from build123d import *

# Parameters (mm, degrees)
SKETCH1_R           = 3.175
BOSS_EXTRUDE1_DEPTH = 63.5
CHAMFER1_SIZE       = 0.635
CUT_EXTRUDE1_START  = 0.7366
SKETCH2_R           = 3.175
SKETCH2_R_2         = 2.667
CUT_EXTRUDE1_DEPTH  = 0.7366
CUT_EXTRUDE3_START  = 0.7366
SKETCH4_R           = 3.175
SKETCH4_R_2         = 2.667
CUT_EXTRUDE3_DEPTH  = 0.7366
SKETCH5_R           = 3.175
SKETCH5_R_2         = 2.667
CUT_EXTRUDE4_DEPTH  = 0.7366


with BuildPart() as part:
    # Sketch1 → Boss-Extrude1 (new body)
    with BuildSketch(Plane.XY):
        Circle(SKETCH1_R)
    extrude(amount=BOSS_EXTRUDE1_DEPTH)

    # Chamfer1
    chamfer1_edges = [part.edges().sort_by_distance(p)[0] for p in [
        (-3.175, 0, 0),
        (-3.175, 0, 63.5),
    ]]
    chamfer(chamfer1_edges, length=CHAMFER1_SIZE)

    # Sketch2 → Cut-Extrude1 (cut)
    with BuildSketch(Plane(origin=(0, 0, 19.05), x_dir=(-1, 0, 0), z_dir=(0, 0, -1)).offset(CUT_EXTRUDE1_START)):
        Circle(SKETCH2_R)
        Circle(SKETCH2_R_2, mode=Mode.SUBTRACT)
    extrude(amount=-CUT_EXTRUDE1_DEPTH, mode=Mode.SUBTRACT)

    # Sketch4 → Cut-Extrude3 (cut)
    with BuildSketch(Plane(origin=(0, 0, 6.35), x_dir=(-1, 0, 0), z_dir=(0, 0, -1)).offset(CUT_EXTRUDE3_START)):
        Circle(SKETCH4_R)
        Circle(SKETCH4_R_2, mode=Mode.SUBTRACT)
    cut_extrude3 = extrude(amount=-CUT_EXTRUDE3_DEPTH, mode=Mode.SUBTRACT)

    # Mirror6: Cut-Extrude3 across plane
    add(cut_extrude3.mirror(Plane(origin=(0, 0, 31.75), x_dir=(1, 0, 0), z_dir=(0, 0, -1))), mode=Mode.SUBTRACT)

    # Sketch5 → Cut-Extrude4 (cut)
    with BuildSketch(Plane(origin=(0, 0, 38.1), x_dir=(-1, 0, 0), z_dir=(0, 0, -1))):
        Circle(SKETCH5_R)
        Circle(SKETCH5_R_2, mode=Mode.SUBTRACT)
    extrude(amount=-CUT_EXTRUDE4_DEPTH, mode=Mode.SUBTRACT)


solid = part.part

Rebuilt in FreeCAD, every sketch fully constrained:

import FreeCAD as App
import Part
import Sketcher

V = App.Vector
Q = App.Units.Quantity


def edges_at(feature, points):
    """Names of the edges that pass closest to the given points."""
    edges = feature.Shape.Edges
    near = lambda p: min(range(len(edges)), key=lambda i: edges[i].distToShape(Part.Vertex(*p))[0])
    return sorted({f"Edge{near(p) + 1}" for p in points})

doc = App.newDocument("Part")
body = doc.addObject("PartDesign::Body", "Body")

# Sketch on XY plane
sketch1 = body.newObject("Sketcher::SketchObject", "Sketch")
sketch1.AttachmentSupport = (doc.getObject("XY_Plane"), [""])
sketch1.MapMode = "FlatFace"
sketch1.addGeometry(Part.Circle(V(0, 0, 0), V(0, 0, 1), 3.175), False)
sketch1.addConstraint(Sketcher.Constraint("Coincident", 0, 3, -1, 1))
sketch1.addConstraint(Sketcher.Constraint("Diameter", 0, Q("0.25 in")))
pad1 = body.newObject("PartDesign::Pad", "Pad")
pad1.Profile = sketch1
pad1.Length = Q("2.5 in")
doc.recompute()

chamfer = body.newObject("PartDesign::Chamfer", "Chamfer")
chamfer.Base = (pad1, edges_at(pad1, [(-3.175, 0, 0), (-3.175, 0, 63.5)]))
chamfer.Size = Q("0.025 in")

# Sketch on XY plane
sketch2 = body.newObject("Sketcher::SketchObject", "Sketch001")
sketch2.AttachmentSupport = (doc.getObject("XY_Plane"), [""])
sketch2.MapMode = "FlatFace"
sketch2.AttachmentOffset = App.Placement(V(0, 0, 0.721 * 25.4), App.Rotation())
sketch2.addGeometry(Part.Circle(V(0, 0, 0), V(0, 0, 1), 3.175), False)
sketch2.addGeometry(Part.Circle(V(0, 0, 0), V(0, 0, 1), 2.667), False)
sketch2.addConstraint(Sketcher.Constraint("Coincident", 0, 3, -1, 1))
sketch2.addConstraint(Sketcher.Constraint("Coincident", 1, 3, -1, 1))
sketch2.addConstraint(Sketcher.Constraint("Diameter", 0, Q("0.25 in")))
sketch2.addConstraint(Sketcher.Constraint("Diameter", 1, Q("0.21 in")))
pocket1 = body.newObject("PartDesign::Pocket", "Pocket")
pocket1.Profile = sketch2
pocket1.Length = Q("0.029 in")
pocket1.Reversed = True

# Sketch on XY plane
sketch3 = body.newObject("Sketcher::SketchObject", "Sketch002")
sketch3.AttachmentSupport = (doc.getObject("XY_Plane"), [""])
sketch3.MapMode = "FlatFace"
sketch3.AttachmentOffset = App.Placement(V(0, 0, 0.221 * 25.4), App.Rotation())
sketch3.addGeometry(Part.Circle(V(0, 0, 0), V(0, 0, 1), 3.175), False)
sketch3.addGeometry(Part.Circle(V(0, 0, 0), V(0, 0, 1), 2.667), False)
sketch3.addConstraint(Sketcher.Constraint("Coincident", 0, 3, -1, 1))
sketch3.addConstraint(Sketcher.Constraint("Coincident", 1, 3, -1, 1))
sketch3.addConstraint(Sketcher.Constraint("Diameter", 0, Q("0.25 in")))
sketch3.addConstraint(Sketcher.Constraint("Diameter", 1, Q("0.21 in")))
pocket2 = body.newObject("PartDesign::Pocket", "Pocket001")
pocket2.Profile = sketch3
pocket2.Length = Q("0.029 in")
pocket2.Reversed = True
doc.recompute()

datumplane = body.newObject("PartDesign::Plane", "DatumPlane")
datumplane.AttachmentSupport = (doc.getObject("XY_Plane"), [""])
datumplane.MapMode = "FlatFace"
datumplane.AttachmentOffset = App.Placement(V(0, 0, 1.25 * 25.4), App.Rotation())
mirrored = body.newObject("PartDesign::Mirrored", "Mirrored")
mirrored.Originals = [pocket2]
mirrored.MirrorPlane = (datumplane, [""])
body.Tip = mirrored

# Sketch on XY plane
sketch4 = body.newObject("Sketcher::SketchObject", "Sketch003")
sketch4.AttachmentSupport = (doc.getObject("XY_Plane"), [""])
sketch4.MapMode = "FlatFace"
sketch4.AttachmentOffset = App.Placement(V(0, 0, 1.5 * 25.4), App.Rotation())
sketch4.addGeometry(Part.Circle(V(0, 0, 0), V(0, 0, 1), 3.175), False)
sketch4.addGeometry(Part.Circle(V(0, 0, 0), V(0, 0, 1), 2.667), False)
sketch4.addConstraint(Sketcher.Constraint("Coincident", 0, 3, -1, 1))
sketch4.addConstraint(Sketcher.Constraint("Coincident", 1, 3, -1, 1))
sketch4.addConstraint(Sketcher.Constraint("Diameter", 0, Q("0.25 in")))
sketch4.addConstraint(Sketcher.Constraint("Diameter", 1, Q("0.21 in")))
pocket3 = body.newObject("PartDesign::Pocket", "Pocket002")
pocket3.Profile = sketch4
pocket3.Length = Q("0.029 in")
pocket3.Reversed = True

doc.recompute()
